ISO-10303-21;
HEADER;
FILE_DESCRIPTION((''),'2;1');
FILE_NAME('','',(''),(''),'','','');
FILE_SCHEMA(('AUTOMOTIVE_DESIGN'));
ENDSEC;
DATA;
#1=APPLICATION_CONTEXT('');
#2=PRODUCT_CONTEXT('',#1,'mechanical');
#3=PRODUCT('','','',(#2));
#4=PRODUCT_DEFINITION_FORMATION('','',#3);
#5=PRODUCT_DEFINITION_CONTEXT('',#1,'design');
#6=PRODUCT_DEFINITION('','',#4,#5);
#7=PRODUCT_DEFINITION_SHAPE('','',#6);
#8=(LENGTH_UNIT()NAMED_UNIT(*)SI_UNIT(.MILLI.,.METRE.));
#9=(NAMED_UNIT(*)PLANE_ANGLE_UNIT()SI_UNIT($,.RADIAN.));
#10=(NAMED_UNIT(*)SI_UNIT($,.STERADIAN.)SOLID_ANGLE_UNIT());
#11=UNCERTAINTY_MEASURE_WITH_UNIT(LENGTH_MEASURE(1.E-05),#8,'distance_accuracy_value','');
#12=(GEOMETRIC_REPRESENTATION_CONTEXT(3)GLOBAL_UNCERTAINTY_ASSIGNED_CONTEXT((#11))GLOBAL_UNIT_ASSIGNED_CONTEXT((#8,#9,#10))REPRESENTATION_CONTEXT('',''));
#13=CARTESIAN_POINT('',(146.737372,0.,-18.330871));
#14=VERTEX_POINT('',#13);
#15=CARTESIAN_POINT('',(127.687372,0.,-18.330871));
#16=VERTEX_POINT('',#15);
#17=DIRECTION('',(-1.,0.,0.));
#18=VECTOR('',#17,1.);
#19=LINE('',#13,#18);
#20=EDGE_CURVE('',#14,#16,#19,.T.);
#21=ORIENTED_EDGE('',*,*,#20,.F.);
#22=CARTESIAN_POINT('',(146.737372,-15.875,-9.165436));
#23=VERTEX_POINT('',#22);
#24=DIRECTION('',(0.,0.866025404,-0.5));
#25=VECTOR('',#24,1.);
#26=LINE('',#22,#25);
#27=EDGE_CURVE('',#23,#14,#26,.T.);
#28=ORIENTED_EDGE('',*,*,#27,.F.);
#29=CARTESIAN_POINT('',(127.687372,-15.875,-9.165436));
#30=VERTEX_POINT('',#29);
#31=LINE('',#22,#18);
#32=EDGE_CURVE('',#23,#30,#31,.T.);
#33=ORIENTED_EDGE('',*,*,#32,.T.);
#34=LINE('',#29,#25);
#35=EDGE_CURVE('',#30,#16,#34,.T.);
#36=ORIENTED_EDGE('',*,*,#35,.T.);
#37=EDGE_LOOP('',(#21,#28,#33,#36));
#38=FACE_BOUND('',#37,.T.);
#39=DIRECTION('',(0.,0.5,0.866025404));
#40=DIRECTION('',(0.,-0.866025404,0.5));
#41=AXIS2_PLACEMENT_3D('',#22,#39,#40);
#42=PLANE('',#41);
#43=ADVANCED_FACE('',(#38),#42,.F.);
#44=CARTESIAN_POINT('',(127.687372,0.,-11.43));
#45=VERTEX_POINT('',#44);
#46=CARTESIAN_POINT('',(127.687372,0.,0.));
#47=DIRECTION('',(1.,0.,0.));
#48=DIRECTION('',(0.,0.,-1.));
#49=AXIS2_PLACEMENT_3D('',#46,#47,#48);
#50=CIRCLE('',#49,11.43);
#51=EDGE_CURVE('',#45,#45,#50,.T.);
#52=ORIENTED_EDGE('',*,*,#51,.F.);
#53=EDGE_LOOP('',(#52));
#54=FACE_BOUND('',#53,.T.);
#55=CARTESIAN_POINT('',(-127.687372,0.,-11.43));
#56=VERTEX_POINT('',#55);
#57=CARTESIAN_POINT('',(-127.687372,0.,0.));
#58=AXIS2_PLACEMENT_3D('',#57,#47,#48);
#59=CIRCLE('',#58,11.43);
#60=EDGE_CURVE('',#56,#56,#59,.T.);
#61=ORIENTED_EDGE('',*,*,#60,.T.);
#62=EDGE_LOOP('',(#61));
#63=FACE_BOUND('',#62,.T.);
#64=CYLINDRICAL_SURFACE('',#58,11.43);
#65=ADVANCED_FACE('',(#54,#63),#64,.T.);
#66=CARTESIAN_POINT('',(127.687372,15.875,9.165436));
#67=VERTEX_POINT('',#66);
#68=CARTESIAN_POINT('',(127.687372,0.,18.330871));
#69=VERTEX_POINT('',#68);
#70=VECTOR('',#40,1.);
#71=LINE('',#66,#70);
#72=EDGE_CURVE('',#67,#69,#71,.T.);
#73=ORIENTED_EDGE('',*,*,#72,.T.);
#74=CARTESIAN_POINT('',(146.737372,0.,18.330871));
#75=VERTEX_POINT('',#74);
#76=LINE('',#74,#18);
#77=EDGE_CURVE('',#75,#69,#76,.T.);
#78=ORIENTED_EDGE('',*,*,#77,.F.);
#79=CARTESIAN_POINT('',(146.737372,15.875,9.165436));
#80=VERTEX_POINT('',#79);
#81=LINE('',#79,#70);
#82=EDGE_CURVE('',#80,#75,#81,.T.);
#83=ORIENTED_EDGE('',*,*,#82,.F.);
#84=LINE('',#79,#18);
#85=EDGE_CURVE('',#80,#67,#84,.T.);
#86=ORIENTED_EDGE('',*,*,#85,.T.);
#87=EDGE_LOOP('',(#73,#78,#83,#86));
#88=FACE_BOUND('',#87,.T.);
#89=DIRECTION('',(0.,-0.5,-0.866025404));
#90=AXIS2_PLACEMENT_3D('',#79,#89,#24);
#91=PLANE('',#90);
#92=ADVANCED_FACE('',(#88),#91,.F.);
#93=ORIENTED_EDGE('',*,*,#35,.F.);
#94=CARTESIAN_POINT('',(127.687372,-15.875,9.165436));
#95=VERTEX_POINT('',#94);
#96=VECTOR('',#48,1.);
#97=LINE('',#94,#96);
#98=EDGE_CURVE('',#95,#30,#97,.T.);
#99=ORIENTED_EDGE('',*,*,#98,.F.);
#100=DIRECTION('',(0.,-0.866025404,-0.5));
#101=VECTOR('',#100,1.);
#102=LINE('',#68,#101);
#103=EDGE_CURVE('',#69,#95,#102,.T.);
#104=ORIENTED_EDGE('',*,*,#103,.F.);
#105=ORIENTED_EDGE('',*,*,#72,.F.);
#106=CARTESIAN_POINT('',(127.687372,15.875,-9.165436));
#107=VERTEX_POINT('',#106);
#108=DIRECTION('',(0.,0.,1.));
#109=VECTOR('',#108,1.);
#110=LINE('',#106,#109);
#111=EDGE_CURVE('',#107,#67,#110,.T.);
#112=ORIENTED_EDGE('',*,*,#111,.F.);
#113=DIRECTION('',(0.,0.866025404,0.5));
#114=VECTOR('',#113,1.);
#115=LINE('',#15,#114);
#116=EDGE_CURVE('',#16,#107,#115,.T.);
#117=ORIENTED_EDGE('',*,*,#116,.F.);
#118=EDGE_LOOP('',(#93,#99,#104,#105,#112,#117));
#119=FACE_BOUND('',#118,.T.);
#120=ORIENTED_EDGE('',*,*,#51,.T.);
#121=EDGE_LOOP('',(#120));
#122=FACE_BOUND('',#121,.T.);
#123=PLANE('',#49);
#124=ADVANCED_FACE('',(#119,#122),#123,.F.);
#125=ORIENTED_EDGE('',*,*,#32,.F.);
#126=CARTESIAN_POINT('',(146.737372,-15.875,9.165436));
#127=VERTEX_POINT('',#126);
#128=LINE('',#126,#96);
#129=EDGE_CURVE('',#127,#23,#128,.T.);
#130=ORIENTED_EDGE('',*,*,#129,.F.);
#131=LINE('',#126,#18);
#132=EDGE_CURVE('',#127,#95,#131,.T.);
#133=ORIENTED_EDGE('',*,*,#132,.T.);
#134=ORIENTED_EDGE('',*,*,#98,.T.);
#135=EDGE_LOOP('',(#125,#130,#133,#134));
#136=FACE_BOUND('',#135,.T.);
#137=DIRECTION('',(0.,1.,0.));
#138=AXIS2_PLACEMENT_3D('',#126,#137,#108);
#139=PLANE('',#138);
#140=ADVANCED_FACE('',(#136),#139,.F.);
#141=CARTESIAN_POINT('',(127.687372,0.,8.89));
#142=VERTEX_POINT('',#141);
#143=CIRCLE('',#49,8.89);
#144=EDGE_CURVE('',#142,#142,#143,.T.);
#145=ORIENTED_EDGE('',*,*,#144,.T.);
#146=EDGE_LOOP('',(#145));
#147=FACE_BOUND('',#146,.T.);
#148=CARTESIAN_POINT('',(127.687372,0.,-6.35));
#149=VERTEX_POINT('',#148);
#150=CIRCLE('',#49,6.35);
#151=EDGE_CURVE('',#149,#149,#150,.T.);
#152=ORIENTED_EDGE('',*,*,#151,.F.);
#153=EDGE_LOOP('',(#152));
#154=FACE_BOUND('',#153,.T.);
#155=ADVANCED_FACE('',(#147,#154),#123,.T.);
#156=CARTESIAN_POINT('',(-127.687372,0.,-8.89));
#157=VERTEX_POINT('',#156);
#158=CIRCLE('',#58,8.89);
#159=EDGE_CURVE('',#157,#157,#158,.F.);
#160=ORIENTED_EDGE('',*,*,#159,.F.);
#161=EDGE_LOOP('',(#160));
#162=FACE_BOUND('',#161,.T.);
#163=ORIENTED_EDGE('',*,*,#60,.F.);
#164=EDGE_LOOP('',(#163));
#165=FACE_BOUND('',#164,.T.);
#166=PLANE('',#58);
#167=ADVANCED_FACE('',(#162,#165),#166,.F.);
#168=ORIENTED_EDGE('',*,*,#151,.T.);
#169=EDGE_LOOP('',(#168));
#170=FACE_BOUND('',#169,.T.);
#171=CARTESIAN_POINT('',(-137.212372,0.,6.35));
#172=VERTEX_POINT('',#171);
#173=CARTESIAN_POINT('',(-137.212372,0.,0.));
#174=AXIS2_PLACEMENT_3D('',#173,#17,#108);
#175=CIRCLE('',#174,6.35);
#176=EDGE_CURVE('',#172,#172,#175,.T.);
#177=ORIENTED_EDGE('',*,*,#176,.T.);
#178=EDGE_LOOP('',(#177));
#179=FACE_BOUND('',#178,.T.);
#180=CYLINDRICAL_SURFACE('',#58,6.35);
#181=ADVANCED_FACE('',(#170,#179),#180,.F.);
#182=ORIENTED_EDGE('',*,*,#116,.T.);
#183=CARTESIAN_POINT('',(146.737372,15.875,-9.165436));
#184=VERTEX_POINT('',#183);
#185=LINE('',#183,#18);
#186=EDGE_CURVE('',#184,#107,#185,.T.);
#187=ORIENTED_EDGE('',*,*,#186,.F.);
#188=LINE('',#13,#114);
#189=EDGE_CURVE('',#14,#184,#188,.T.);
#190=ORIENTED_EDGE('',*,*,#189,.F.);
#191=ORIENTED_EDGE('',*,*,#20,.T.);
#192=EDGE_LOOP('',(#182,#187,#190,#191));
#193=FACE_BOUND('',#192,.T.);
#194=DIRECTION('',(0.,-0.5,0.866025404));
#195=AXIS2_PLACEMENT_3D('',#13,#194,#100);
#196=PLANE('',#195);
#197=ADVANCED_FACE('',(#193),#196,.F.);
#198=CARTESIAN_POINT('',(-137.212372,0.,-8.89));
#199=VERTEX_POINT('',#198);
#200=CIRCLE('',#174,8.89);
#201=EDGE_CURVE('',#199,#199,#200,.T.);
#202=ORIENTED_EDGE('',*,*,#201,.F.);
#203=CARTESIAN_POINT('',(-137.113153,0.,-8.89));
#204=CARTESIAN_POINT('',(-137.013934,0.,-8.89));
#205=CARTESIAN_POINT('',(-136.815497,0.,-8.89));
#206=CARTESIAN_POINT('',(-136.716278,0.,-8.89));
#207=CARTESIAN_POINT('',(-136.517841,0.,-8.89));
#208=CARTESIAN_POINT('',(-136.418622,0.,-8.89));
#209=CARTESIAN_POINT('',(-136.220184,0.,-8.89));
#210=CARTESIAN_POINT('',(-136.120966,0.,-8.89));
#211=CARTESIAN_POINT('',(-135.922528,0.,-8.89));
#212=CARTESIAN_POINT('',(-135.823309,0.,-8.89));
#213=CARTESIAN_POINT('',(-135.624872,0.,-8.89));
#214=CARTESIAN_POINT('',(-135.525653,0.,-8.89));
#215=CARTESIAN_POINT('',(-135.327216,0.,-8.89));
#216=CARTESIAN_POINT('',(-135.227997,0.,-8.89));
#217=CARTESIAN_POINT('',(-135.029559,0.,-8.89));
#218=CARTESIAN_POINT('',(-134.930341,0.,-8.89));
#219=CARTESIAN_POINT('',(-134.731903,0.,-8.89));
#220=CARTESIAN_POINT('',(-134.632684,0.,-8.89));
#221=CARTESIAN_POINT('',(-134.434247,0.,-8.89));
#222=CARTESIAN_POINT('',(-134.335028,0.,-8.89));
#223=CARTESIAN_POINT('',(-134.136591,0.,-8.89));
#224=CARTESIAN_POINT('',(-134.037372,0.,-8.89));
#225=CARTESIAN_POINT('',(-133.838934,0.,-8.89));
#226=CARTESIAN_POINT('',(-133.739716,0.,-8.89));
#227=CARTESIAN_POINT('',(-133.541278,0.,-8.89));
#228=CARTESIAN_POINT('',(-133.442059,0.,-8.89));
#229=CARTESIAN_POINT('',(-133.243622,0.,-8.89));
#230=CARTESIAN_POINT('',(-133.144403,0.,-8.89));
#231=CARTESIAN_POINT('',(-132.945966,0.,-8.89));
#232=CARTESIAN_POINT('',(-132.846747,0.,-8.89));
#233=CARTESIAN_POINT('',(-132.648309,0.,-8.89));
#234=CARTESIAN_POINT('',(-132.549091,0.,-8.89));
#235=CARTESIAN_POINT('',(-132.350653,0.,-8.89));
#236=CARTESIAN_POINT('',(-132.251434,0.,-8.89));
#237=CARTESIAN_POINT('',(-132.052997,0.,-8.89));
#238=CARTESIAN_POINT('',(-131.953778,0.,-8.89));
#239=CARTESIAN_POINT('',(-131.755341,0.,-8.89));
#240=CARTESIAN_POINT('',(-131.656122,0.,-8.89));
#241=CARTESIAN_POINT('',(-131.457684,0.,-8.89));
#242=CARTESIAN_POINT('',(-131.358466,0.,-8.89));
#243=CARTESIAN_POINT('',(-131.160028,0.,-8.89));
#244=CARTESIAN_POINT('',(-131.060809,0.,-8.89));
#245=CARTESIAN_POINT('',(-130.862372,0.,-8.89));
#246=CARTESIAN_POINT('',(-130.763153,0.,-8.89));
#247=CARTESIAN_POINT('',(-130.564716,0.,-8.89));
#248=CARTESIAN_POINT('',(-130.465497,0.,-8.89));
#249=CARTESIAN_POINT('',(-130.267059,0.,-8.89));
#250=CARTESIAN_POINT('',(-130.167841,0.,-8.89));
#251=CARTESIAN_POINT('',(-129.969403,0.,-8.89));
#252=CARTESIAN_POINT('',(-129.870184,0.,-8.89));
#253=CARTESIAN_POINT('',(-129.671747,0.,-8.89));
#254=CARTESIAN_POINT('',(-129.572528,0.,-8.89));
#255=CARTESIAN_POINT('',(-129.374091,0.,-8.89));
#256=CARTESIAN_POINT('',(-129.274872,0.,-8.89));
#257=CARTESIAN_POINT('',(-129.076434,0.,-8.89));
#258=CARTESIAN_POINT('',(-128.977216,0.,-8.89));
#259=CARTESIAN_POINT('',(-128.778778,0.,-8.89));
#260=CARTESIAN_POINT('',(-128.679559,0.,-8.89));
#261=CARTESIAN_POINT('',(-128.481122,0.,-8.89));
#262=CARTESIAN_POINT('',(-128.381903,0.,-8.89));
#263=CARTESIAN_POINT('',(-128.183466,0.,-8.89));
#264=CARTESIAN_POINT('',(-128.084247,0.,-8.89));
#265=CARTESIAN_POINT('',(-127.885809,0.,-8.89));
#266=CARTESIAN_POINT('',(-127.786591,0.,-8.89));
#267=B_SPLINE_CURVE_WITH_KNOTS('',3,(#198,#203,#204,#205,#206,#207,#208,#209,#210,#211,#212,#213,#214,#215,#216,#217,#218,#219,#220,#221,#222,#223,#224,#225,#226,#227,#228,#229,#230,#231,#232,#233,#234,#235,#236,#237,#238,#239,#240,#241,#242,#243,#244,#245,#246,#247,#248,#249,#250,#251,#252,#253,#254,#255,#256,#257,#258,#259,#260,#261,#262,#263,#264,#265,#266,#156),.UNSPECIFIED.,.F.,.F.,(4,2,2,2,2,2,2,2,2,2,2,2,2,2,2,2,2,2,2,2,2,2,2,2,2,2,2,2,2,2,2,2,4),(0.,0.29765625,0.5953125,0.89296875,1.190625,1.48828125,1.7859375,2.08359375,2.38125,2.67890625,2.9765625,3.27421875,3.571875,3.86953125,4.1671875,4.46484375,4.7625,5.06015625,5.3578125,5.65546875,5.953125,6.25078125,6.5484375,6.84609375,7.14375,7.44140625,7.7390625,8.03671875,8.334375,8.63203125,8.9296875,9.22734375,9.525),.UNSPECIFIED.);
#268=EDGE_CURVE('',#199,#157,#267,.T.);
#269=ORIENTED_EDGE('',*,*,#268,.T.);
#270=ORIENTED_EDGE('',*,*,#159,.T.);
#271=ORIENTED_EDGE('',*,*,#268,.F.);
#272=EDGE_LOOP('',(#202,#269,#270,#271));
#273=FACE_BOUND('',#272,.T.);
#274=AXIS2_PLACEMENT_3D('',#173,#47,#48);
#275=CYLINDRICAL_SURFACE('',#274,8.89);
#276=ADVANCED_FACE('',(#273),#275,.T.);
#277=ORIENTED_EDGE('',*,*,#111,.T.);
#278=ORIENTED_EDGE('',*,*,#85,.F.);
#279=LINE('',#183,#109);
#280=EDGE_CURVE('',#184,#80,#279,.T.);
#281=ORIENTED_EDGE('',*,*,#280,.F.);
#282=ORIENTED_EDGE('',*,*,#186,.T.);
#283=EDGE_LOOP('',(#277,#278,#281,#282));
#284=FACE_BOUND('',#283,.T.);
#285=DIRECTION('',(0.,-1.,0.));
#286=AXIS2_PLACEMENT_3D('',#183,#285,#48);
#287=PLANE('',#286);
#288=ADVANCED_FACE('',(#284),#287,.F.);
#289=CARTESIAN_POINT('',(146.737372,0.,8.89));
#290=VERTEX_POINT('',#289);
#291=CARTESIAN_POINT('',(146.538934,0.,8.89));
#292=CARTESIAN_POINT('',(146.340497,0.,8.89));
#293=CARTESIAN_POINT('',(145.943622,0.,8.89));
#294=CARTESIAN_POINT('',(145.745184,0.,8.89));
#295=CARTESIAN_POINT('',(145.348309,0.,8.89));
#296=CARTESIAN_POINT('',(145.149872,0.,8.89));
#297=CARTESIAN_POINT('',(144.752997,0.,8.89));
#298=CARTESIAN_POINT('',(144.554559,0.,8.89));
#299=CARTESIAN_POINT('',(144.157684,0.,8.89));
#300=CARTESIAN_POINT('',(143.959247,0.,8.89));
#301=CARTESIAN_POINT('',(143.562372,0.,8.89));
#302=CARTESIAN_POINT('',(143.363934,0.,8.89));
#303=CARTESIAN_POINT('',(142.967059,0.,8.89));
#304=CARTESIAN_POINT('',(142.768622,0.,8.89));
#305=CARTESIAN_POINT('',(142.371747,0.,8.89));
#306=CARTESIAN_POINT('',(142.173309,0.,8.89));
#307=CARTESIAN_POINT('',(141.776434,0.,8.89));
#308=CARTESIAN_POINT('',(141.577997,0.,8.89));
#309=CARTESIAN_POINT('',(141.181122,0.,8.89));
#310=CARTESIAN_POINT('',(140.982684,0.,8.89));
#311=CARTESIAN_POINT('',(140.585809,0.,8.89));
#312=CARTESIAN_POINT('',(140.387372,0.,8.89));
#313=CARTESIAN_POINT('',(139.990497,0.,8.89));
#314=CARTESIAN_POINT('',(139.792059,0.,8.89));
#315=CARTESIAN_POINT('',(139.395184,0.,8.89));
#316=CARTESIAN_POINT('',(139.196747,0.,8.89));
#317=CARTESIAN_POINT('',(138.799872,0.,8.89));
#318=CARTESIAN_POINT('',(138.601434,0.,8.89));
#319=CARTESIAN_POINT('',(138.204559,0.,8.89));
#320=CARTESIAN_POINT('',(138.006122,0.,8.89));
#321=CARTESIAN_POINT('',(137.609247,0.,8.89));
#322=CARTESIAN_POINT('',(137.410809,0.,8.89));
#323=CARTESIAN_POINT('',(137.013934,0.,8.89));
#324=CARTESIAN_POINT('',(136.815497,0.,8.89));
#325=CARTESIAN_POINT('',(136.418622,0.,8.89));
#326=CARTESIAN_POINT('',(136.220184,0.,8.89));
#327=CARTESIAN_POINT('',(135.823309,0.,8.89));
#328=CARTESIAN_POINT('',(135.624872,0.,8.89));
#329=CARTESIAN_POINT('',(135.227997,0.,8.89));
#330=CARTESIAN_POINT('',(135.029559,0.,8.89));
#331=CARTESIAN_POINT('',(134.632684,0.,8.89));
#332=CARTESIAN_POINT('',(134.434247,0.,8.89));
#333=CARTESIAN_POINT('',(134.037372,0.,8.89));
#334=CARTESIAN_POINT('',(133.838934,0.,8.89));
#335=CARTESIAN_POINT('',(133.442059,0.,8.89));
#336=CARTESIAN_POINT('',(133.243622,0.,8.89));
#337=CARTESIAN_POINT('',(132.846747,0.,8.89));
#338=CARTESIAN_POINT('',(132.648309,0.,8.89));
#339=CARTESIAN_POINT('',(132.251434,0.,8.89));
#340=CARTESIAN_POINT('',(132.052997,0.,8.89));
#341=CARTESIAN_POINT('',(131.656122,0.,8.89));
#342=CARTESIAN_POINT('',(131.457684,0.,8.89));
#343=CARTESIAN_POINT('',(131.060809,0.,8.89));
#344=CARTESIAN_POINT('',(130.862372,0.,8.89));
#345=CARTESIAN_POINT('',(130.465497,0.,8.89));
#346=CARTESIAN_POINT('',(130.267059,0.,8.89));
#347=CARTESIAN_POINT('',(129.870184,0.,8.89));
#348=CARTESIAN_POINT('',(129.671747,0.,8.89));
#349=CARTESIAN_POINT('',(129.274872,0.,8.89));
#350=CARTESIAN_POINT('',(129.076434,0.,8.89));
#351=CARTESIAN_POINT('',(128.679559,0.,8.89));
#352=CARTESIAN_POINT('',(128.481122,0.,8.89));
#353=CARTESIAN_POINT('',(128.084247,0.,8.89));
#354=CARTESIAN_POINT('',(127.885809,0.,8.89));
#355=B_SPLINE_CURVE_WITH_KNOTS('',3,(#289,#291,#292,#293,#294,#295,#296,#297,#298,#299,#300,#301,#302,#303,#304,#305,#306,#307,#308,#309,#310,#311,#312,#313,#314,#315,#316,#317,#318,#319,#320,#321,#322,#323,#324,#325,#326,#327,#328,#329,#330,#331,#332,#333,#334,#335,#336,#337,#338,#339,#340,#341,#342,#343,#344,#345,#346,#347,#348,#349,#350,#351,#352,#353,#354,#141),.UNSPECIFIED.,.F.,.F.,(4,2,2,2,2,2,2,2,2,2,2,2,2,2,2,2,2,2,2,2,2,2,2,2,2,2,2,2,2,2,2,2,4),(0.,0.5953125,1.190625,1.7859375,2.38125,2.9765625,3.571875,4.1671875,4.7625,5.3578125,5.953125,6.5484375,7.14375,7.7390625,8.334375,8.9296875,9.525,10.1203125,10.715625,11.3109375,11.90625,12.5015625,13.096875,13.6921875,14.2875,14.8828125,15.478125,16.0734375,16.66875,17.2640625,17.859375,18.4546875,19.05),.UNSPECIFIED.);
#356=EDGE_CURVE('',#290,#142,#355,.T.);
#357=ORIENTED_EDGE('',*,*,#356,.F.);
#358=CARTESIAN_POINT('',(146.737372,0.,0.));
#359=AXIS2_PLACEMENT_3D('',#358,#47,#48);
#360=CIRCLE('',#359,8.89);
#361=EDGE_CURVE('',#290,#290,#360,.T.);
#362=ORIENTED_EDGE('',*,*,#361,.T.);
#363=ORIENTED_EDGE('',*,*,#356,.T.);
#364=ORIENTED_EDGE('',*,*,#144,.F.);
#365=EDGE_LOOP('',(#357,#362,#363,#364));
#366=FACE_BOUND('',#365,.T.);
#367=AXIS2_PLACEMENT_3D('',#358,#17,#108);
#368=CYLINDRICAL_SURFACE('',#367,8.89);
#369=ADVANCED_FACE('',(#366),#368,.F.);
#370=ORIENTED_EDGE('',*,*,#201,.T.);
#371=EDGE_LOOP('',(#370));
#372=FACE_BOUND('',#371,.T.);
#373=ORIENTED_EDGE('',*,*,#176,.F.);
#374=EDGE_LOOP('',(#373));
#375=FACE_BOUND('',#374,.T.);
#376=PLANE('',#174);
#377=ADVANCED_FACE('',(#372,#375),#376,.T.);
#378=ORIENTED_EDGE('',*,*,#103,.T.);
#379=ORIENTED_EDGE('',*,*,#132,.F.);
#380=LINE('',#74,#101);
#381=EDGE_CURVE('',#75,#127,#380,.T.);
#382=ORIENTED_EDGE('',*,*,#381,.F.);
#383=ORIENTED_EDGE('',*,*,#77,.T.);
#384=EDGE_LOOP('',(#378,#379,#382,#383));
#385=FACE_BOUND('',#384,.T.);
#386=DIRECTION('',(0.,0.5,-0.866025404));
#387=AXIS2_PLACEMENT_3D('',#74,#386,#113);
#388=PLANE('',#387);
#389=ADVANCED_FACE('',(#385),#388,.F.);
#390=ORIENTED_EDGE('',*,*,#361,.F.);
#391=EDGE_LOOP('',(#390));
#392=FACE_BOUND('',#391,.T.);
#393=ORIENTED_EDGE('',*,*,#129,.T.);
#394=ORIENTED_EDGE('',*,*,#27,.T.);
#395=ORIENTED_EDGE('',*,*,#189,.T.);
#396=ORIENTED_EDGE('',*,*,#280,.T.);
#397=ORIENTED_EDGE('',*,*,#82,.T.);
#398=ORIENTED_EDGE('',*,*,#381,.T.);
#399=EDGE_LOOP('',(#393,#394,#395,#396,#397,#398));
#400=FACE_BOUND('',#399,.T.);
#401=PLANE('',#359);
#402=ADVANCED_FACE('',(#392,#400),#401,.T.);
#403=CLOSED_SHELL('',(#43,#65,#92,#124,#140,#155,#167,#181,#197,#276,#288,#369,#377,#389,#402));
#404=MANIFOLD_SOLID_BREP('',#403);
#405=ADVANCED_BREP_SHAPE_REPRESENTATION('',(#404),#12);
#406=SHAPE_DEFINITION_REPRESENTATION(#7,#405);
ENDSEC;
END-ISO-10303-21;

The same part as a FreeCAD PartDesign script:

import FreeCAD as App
import Part
import Sketcher
from FreeCAD import Vector
Q = App.Units.Quantity

doc = App.newDocument("Part")
body = doc.addObject("PartDesign::Body", "Body")

# Sketch on YZ plane
sketch1 = body.newObject("Sketcher::SketchObject", "Sketch")
sketch1.AttachmentSupport = (doc.getObject("YZ_Plane"), [""])
sketch1.MapMode = "FlatFace"
sketch1.AttachmentOffset = App.Placement(Vector(0, 0, -127.687372), App.Rotation())
sketch1.addGeometry(Part.Circle(Vector(0, 0, 0), Vector(0, 0, 1), 11), False)
sketch1.addGeometry(Part.Circle(Vector(0, 0, 0), Vector(0, 0, 1), 6), False)
sketch1.addConstraint(Sketcher.Constraint("Coincident", 0, 3, -1, 1))
sketch1.addConstraint(Sketcher.Constraint("Coincident", 1, 3, -1, 1))
sketch1.addConstraint(Sketcher.Constraint("Diameter", 0, Q("0.9 in")))
sketch1.addConstraint(Sketcher.Constraint("Diameter", 1, Q("0.5 in")))

# Sketch on XY plane
sketch2 = body.newObject("Sketcher::SketchObject", "Sketch001")
sketch2.AttachmentSupport = (doc.getObject("XY_Plane"), [""])
sketch2.MapMode = "FlatFace"
sketch2.addGeometry(Part.LineSegment(Vector(-128, 0, 0), Vector(128, 0, 0)), False)
sketch2.addConstraint(Sketcher.Constraint("Horizontal", 0))
sketch2.addConstraint(Sketcher.Constraint("Symmetric", 0, 1, 0, 2, -1, 1))
sketch2.addConstraint(Sketcher.Constraint("DistanceX", 0, 1, 0, 2, 255.374744))
doc.recompute()

additivepipe = body.newObject("PartDesign::AdditivePipe", "AdditivePipe")
additivepipe.Profile = sketch1
additivepipe.Spine = (sketch2, ["Edge1"])

# Sketch on YZ plane
sketch3 = body.newObject("Sketcher::SketchObject", "Sketch002")
sketch3.AttachmentSupport = (doc.getObject("YZ_Plane"), [""])
sketch3.MapMode = "FlatFace"
sketch3.AttachmentOffset = App.Placement(Vector(0, 0, 127.687372), App.Rotation())
sketch3.addGeometry(Part.LineSegment(Vector(16, -9, 0), Vector(16, 9, 0)), False)
sketch3.addGeometry(Part.LineSegment(Vector(16, 9, 0), Vector(0, 18, 0)), False)
sketch3.addGeometry(Part.LineSegment(Vector(0, 18, 0), Vector(-16, 9, 0)), False)
sketch3.addGeometry(Part.LineSegment(Vector(-16, 9, 0), Vector(-16, -9, 0)), False)
sketch3.addGeometry(Part.LineSegment(Vector(-16, -9, 0), Vector(0, -18, 0)), False)
sketch3.addGeometry(Part.LineSegment(Vector(0, -18, 0), Vector(16, -9, 0)), False)
sketch3.addGeometry(Part.Circle(Vector(0, 0, 0), Vector(0, 0, 1), 9), False)
sketch3.addConstraint(Sketcher.Constraint("Coincident", 0, 2, 1, 1))
sketch3.addConstraint(Sketcher.Constraint("Coincident", 1, 2, 2, 1))
sketch3.addConstraint(Sketcher.Constraint("Coincident", 2, 2, 3, 1))
sketch3.addConstraint(Sketcher.Constraint("Coincident", 3, 2, 4, 1))
sketch3.addConstraint(Sketcher.Constraint("Coincident", 4, 2, 5, 1))
sketch3.addConstraint(Sketcher.Constraint("Coincident", 5, 2, 0, 1))
sketch3.addConstraint(Sketcher.Constraint("Vertical", 0))
sketch3.addConstraint(Sketcher.Constraint("Vertical", 3))
sketch3.addConstraint(Sketcher.Constraint("Coincident", 6, 3, -1, 1))
sketch3.addConstraint(Sketcher.Constraint("Symmetric", 0, 2, 3, 2, -1, 1))
sketch3.addConstraint(Sketcher.Constraint("Symmetric", 1, 2, 4, 2, -1, 1))
sketch3.addConstraint(Sketcher.Constraint("PointOnObject", 1, 2, -2))
sketch3.addConstraint(Sketcher.Constraint("Parallel", 2, 5))
sketch3.addConstraint(Sketcher.Constraint("Horizontal", 0, 2, 2, 2))
sketch3.addConstraint(Sketcher.Constraint("Diameter", 6, Q("0.7 in")))
sketch3.addConstraint(Sketcher.Constraint("Angle", 1, Q("150 deg")))
sketch3.addConstraint(Sketcher.Constraint("DistanceX", 2, 2, 0, 2, Q("1.25 in")))
sketch3.addConstraint(Sketcher.Constraint("DistanceY", 0, 1, 0, 2, 18.330871))
pad1 = body.newObject("PartDesign::Pad", "Pad")
pad1.Profile = sketch3
pad1.Length = Q("0.75 in")

# Sketch on YZ plane
sketch4 = body.newObject("Sketcher::SketchObject", "Sketch003")
sketch4.AttachmentSupport = (doc.getObject("YZ_Plane"), [""])
sketch4.MapMode = "FlatFace"
sketch4.AttachmentOffset = App.Placement(Vector(0, 0, -127.687372), App.Rotation())
sketch4.addGeometry(Part.Circle(Vector(0, 0, 0), Vector(0, 0, 1), 9), False)
sketch4.addGeometry(Part.Circle(Vector(0, 0, 0), Vector(0, 0, 1), 6), False)
sketch4.addConstraint(Sketcher.Constraint("Coincident", 0, 3, -1, 1))
sketch4.addConstraint(Sketcher.Constraint("Coincident", 1, 3, -1, 1))
sketch4.addConstraint(Sketcher.Constraint("Diameter", 0, Q("0.7 in")))
sketch4.addConstraint(Sketcher.Constraint("Diameter", 1, Q("0.5 in")))
pad2 = body.newObject("PartDesign::Pad", "Pad001")
pad2.Profile = sketch4
pad2.Length = Q("0.375 in")
pad2.Reversed = True

doc.recompute()
